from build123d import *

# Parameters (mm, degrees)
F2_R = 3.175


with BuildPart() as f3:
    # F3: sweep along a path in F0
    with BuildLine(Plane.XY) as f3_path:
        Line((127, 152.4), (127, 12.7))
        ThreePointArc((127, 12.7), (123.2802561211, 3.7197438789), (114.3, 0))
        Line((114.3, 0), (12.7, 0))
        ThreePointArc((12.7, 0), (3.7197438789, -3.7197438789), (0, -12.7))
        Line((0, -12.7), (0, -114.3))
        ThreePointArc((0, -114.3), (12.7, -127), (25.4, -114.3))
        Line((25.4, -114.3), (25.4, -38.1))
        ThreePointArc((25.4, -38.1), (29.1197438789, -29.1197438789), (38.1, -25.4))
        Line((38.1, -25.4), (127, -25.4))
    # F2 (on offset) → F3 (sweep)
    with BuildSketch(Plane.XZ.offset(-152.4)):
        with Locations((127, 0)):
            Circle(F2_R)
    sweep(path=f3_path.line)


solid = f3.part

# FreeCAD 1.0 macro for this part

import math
import FreeCAD as App
import Part
import Sketcher

V = App.Vector
Q = App.Units.Quantity

doc = App.newDocument("Part")
params = doc.addObject("Spreadsheet::Sheet", "Params")
for row, (alias, value) in enumerate([
    ("sketch1_diameter", "0.25 in"),
    ("sketch2_radius", "0.5 in"),
    ("sketch2_width", "4 in"),
    ("sketch2_height", "3 in"),
    ("sketch2_height2", "5.5 in"),
], start=1):
    params.set(f"A{row}", alias)
    params.set(f"B{row}", "=" + value)
    params.setAlias(f"B{row}", alias)

body = doc.addObject("PartDesign::Body", "Body")

# Sketch on XZ plane
sketch1 = body.newObject("Sketcher::SketchObject", "Sketch")
sketch1.AttachmentSupport = (doc.getObject("XZ_Plane"), [""])
sketch1.MapMode = "FlatFace"
sketch1.AttachmentOffset = App.Placement(V(0, 0, -6 * 25.4), App.Rotation())
sketch1.addGeometry(Part.Circle(V(127, 0, 0), V(0, 0, 1), 3.2), False)
sketch1.addConstraint(Sketcher.Constraint("PointOnObject", 0, 3, -1))
sketch1.addConstraint(Sketcher.Constraint("Diameter", 0, Q("0.25 in")))
sketch1.addConstraint(Sketcher.Constraint("DistanceX", -1, 1, 0, 3, Q("5 in")))
sketch1.setExpression("Constraints[1]", "Params.sketch1_diameter")

# Sketch on XY plane
sketch2 = body.newObject("Sketcher::SketchObject", "Sketch001")
sketch2.AttachmentSupport = (doc.getObject("XY_Plane"), [""])
sketch2.MapMode = "FlatFace"
sketch2.addGeometry(Part.LineSegment(V(127, 152, 0), V(127, 13, 0)), False)
sketch2.addGeometry(Part.ArcOfCircle(Part.Circle(V(114, 13, 0), V(0, 0, 1), 13), math.radians(-90), math.radians(0)), False)
sketch2.addGeometry(Part.LineSegment(V(114, 0, 0), V(13, 0, 0)), False)
sketch2.addGeometry(Part.ArcOfCircle(Part.Circle(V(13, -13, 0), V(0, 0, 1), 13), math.radians(90), math.radians(180)), False)
sketch2.addGeometry(Part.LineSegment(V(0, -13, 0), V(0, -114, 0)), False)
sketch2.addGeometry(Part.ArcOfCircle(Part.Circle(V(13, -114, 0), V(0, 0, 1), 13), math.radians(180), math.radians(360)), False)
sketch2.addGeometry(Part.LineSegment(V(25, -114, 0), V(25, -38, 0)), False)
sketch2.addGeometry(Part.ArcOfCircle(Part.Circle(V(38, -38, 0), V(0, 0, 1), 13), math.radians(90), math.radians(180)), False)
sketch2.addGeometry(Part.LineSegment(V(38, -25, 0), V(127, -25, 0)), False)
sketch2.addConstraint(Sketcher.Constraint("Tangent", 0, 2, 1, 2))
sketch2.addConstraint(Sketcher.Constraint("Tangent", 1, 1, 2, 1))
sketch2.addConstraint(Sketcher.Constraint("Tangent", 2, 2, 3, 1))
sketch2.addConstraint(Sketcher.Constraint("Tangent", 3, 2, 4, 1))
sketch2.addConstraint(Sketcher.Constraint("Tangent", 4, 2, 5, 1))
sketch2.addConstraint(Sketcher.Constraint("Tangent", 5, 2, 6, 1))
sketch2.addConstraint(Sketcher.Constraint("Tangent", 6, 2, 7, 2))
sketch2.addConstraint(Sketcher.Constraint("Tangent", 7, 1, 8, 1))
sketch2.addConstraint(Sketcher.Constraint("Vertical", 0))
sketch2.addConstraint(Sketcher.Constraint("Horizontal", 2))
sketch2.addConstraint(Sketcher.Constraint("Vertical", 4))
sketch2.addConstraint(Sketcher.Constraint("Vertical", 6))
sketch2.addConstraint(Sketcher.Constraint("Horizontal", 8))
sketch2.addConstraint(Sketcher.Constraint("Equal", 1, 3))
sketch2.addConstraint(Sketcher.Constraint("Equal", 3, 5))
sketch2.addConstraint(Sketcher.Constraint("Equal", 5, 7))
sketch2.addConstraint(Sketcher.Constraint("PointOnObject", 1, 1, -1))
sketch2.addConstraint(Sketcher.Constraint("PointOnObject", 3, 2, -2))
sketch2.addConstraint(Sketcher.Constraint("Vertical", 0, 2, 8, 2))
sketch2.addConstraint(Sketcher.Constraint("Equal", 2, 4))
sketch2.addConstraint(Sketcher.Constraint("Radius", 1, Q("0.5 in")))
sketch2.addConstraint(Sketcher.Constraint("DistanceX", 2, 2, 2, 1, Q("4 in")))
sketch2.addConstraint(Sketcher.Constraint("DistanceY", 6, 1, 6, 2, Q("3 in")))
sketch2.addConstraint(Sketcher.Constraint("DistanceY", 0, 2, 0, 1, Q("5.5 in")))
sketch2.setExpression("Constraints[20]", "Params.sketch2_radius")
sketch2.setExpression("Constraints[21]", "Params.sketch2_width")
sketch2.setExpression("Constraints[22]", "Params.sketch2_height")
sketch2.setExpression("Constraints[23]", "Params.sketch2_height2")
doc.recompute()

additivepipe = body.newObject("PartDesign::AdditivePipe", "AdditivePipe")
additivepipe.Profile = sketch1
additivepipe.Spine = (sketch2, ["Edge1", "Edge2", "Edge3", "Edge4", "Edge5", "Edge6", "Edge7", "Edge8", "Edge9"])

doc.recompute()
